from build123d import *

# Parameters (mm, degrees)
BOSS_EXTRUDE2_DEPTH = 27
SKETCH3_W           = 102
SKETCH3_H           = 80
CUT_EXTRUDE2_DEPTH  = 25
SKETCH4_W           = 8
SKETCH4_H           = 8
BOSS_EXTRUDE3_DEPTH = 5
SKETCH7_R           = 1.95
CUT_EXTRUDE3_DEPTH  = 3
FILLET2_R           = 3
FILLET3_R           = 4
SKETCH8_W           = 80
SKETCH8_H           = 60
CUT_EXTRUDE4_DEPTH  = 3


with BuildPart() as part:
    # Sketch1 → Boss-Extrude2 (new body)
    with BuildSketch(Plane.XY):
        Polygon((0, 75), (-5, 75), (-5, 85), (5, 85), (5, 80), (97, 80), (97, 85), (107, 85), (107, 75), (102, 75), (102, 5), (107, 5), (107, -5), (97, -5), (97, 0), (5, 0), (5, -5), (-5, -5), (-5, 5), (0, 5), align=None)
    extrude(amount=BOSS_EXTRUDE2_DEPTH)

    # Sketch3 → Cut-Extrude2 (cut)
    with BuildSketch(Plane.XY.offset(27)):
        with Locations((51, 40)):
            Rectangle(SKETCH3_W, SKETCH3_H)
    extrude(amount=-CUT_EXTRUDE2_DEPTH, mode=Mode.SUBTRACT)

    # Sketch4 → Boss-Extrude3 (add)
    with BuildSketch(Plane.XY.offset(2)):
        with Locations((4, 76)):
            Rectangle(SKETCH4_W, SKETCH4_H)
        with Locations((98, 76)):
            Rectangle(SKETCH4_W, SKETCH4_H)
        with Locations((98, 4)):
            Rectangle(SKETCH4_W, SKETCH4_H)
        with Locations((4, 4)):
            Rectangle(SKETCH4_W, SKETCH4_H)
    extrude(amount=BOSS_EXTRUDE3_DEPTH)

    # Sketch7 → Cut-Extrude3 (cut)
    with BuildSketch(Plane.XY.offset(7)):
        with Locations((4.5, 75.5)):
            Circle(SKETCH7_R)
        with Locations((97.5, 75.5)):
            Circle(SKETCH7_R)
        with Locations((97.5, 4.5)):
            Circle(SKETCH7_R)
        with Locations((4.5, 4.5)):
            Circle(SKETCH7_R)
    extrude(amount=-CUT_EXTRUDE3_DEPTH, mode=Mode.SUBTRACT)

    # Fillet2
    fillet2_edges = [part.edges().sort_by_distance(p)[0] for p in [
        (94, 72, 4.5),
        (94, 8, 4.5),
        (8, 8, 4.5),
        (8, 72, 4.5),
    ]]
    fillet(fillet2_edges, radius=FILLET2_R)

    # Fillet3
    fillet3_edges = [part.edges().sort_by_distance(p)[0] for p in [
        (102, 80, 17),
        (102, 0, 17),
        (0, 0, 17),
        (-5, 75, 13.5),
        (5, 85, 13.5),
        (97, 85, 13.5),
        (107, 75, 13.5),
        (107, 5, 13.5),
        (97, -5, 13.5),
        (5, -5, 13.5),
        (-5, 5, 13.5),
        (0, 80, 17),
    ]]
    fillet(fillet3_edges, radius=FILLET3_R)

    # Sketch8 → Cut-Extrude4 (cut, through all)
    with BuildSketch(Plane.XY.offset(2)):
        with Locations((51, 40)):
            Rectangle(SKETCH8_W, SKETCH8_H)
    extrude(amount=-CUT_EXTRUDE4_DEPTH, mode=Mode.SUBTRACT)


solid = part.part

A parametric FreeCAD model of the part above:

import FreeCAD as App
import Part
import Sketcher
Q = App.Units.Quantity


def edges_at(feature, points):
    """Names of the edges that pass closest to the given points."""
    edges = feature.Shape.Edges
    near = lambda p: min(range(len(edges)), key=lambda i: edges[i].distToShape(Part.Vertex(*p))[0])
    return sorted({f"Edge{near(p) + 1}" for p in points})


def add_polygon(sketch, points):
    """Adds a closed chain of lines whose ends are joined by coincident constraints."""
    first, n = sketch.GeometryCount, len(points)
    for a, b in zip(points, points[1:] + points[:1]):
        sketch.addGeometry(Part.LineSegment(App.Vector(*a, 0), App.Vector(*b, 0)), False)
    for i in range(n):
        sketch.addConstraint(Sketcher.Constraint("Coincident", first + i, 2, first + (i + 1) % n, 1))

doc = App.newDocument("Part")
params = doc.addObject("Spreadsheet::Sheet", "Params")
for row, (alias, value) in enumerate([
    ("sketch1_width", "5 mm"),
    ("sketch1_width2", "92 mm"),
    ("sketch1_height", "70 mm"),
    ("pad1_length", "27 mm"),
    ("sketch2_width", "102 mm"),
    ("sketch2_height", "80 mm"),
    ("pocket1_length", "25 mm"),
    ("sketch3_width", "8 mm"),
    ("pad2_length", "5 mm"),
    ("sketch4_diameter", "3.9 mm"),
    ("pocket2_length", "3 mm"),
    ("fillet_radius", "3 mm"),
    ("fillet2_radius", "4 mm"),
    ("sketch5_width", "80 mm"),
    ("sketch5_height", "60 mm"),
], start=1):
    params.set(f"A{row}", alias)
    params.set(f"B{row}", "=" + value)
    params.setAlias(f"B{row}", alias)

body = doc.addObject("PartDesign::Body", "Body")

# Sketch on XY plane
sketch1 = doc.addObject("Sketcher::SketchObject", "Sketch")
body.addObject(sketch1)
sketch1.AttachmentSupport = (doc.XY_Plane, [""])
sketch1.MapMode = "FlatFace"
add_polygon(sketch1, [(-5, 75), (0, 75), (0, 5), (-5, 5), (-5, -5), (5, -5), (5, 0), (97, 0), (97, -5), (107, -5), (107, 5), (102, 5), (102, 75), (107, 75), (107, 85), (97, 85), (97, 80), (5, 80), (5, 85), (-5, 85)])  # lines 0-19
sketch1.addConstraint([
    Sketcher.Constraint("Horizontal", 0),
    Sketcher.Constraint("Vertical", 1),
    Sketcher.Constraint("Horizontal", 2),
    Sketcher.Constraint("Vertical", 3),
    Sketcher.Constraint("Horizontal", 4),
    Sketcher.Constraint("Vertical", 5),
    Sketcher.Constraint("Horizontal", 6),
    Sketcher.Constraint("Vertical", 7),
    Sketcher.Constraint("Horizontal", 8),
    Sketcher.Constraint("Vertical", 9),
    Sketcher.Constraint("Horizontal", 10),
    Sketcher.Constraint("Vertical", 11),
    Sketcher.Constraint("Horizontal", 12),
    Sketcher.Constraint("Vertical", 13),
    Sketcher.Constraint("Horizontal", 14),
    Sketcher.Constraint("Vertical", 15),
    Sketcher.Constraint("Horizontal", 16),
    Sketcher.Constraint("Vertical", 17),
    Sketcher.Constraint("Horizontal", 18),
    Sketcher.Constraint("Vertical", 19),
    Sketcher.Constraint("Symmetric", 2, 2, 4, 2, -1, 1),
    Sketcher.Constraint("PointOnObject", 0, 2, -2),
    Sketcher.Constraint("PointOnObject", 5, 2, -1),
    Sketcher.Constraint("Horizontal", 4, 2, 7, 2),
    Sketcher.Constraint("Horizontal", 2, 2, 9, 2),
    Sketcher.Constraint("Horizontal", 0, 2, 11, 2),
    Sketcher.Constraint("Horizontal", 14, 2, 17, 2),
    Sketcher.Constraint("Vertical", 9, 2, 12, 2),
    Sketcher.Constraint("Vertical", 7, 2, 14, 2),
    Sketcher.Constraint("Vertical", 5, 2, 16, 2),
    Sketcher.Constraint("Vertical", 3, 2, 18, 2),
    Sketcher.Constraint("Equal", 4, 8),
    Sketcher.Constraint("Equal", 2, 10),
    Sketcher.Constraint("Equal", 18, 3),
    Sketcher.Constraint("Equal", 9, 13),
    Sketcher.Constraint("Equal", 7, 15),
    Sketcher.Constraint("DistanceX", 0, 1, 0, 2, Q("5 mm")),
    Sketcher.Constraint("DistanceX", 6, 1, 6, 2, Q("92 mm")),
    Sketcher.Constraint("DistanceY", 1, 2, 1, 1, Q("70 mm")),
])
sketch1.setExpression("Constraints[56]", "Params.sketch1_width")
sketch1.setExpression("Constraints[57]", "Params.sketch1_width2")
sketch1.setExpression("Constraints[58]", "Params.sketch1_height")
pad1 = doc.addObject("PartDesign::Pad", "Pad")
body.addObject(pad1)
pad1.Profile = sketch1
pad1.setExpression("Length", "Params.pad1_length")

# Sketch on XY plane
sketch2 = doc.addObject("Sketcher::SketchObject", "Sketch001")
body.addObject(sketch2)
sketch2.AttachmentSupport = (doc.XY_Plane, [""])
sketch2.MapMode = "FlatFace"
sketch2.AttachmentOffset = App.Placement(App.Vector(0, 0, 27), App.Rotation())
add_polygon(sketch2, [(0, 80), (0, 0), (102, 0), (102, 80)])  # lines 0-3
sketch2.addConstraint([
    Sketcher.Constraint("Vertical", 0),
    Sketcher.Constraint("Horizontal", 1),
    Sketcher.Constraint("Vertical", 2),
    Sketcher.Constraint("Horizontal", 3),
    Sketcher.Constraint("Coincident", 0, 2, -1, 1),
    Sketcher.Constraint("DistanceX", 1, 1, 1, 2, Q("102 mm")),
    Sketcher.Constraint("DistanceY", 0, 2, 0, 1, Q("80 mm")),
])
sketch2.setExpression("Constraints[9]", "Params.sketch2_width")
sketch2.setExpression("Constraints[10]", "Params.sketch2_height")
pocket1 = doc.addObject("PartDesign::Pocket", "Pocket")
body.addObject(pocket1)
pocket1.Profile = sketch2
pocket1.setExpression("Length", "Params.pocket1_length")

# Sketch on XY plane
sketch3 = doc.addObject("Sketcher::SketchObject", "Sketch002")
body.addObject(sketch3)
sketch3.AttachmentSupport = (doc.XY_Plane, [""])
sketch3.MapMode = "FlatFace"
sketch3.AttachmentOffset = App.Placement(App.Vector(0, 0, 2), App.Rotation())
add_polygon(sketch3, [(0, 80), (0, 72), (8, 72), (8, 80)])  # lines 0-3
add_polygon(sketch3, [(94, 80), (94, 72), (102, 72), (102, 80)])  # lines 4-7
add_polygon(sketch3, [(94, 8), (94, 0), (102, 0), (102, 8)])  # lines 8-11
add_polygon(sketch3, [(0, 8), (0, 0), (8, 0), (8, 8)])  # lines 12-15
sketch3.addConstraint([
    Sketcher.Constraint("Vertical", 0),
    Sketcher.Constraint("Horizontal", 1),
    Sketcher.Constraint("Vertical", 2),
    Sketcher.Constraint("Horizontal", 3),
    Sketcher.Constraint("Vertical", 4),
    Sketcher.Constraint("Horizontal", 5),
    Sketcher.Constraint("Vertical", 6),
    Sketcher.Constraint("Horizontal", 7),
    Sketcher.Constraint("Vertical", 8),
    Sketcher.Constraint("Horizontal", 9),
    Sketcher.Constraint("Vertical", 10),
    Sketcher.Constraint("Horizontal", 11),
    Sketcher.Constraint("Vertical", 12),
    Sketcher.Constraint("Horizontal", 13),
    Sketcher.Constraint("Vertical", 14),
    Sketcher.Constraint("Horizontal", 15),
    Sketcher.Constraint("Coincident", 12, 2, -1, 1),
    Sketcher.Constraint("PointOnObject", 0, 2, -2),
    Sketcher.Constraint("PointOnObject", 8, 2, -1),
    Sketcher.Constraint("Horizontal", 1, 2, 4, 2),
    Sketcher.Constraint("Horizontal", 3, 2, 6, 2),
    Sketcher.Constraint("Horizontal", 11, 2, 14, 2),
    Sketcher.Constraint("Vertical", 7, 2, 8, 2),
    Sketcher.Constraint("Vertical", 6, 2, 9, 2),
    Sketcher.Constraint("Vertical", 2, 2, 13, 2),
    Sketcher.Constraint("Equal", 3, 5),
    Sketcher.Constraint("Equal", 15, 0),
    Sketcher.Constraint("Equal", 6, 8),
    Sketcher.Constraint("DistanceX", 1, 1, 1, 2, Q("8 mm")),
    Sketcher.Constraint("DistanceY", -1, 1, 0, 2, Q("72 mm")),
    Sketcher.Constraint("DistanceX", -1, 1, 4, 2, Q("94 mm")),
])
sketch3.setExpression("Constraints[44]", "Params.sketch3_width")
pad2 = doc.addObject("PartDesign::Pad", "Pad001")
body.addObject(pad2)
pad2.Profile = sketch3
pad2.setExpression("Length", "Params.pad2_length")

# Sketch on XY plane
sketch4 = doc.addObject("Sketcher::SketchObject", "Sketch003")
body.addObject(sketch4)
sketch4.AttachmentSupport = (doc.XY_Plane, [""])
sketch4.MapMode = "FlatFace"
sketch4.AttachmentOffset = App.Placement(App.Vector(0, 0, 7), App.Rotation())
sketch4.addGeometry([
    Part.Circle(App.Vector(4.5, 75.5, 0), App.Vector(0, 0, 1), 1.9),
    Part.Circle(App.Vector(97.5, 75.5, 0), App.Vector(0, 0, 1), 1.9),
    Part.Circle(App.Vector(97.5, 4.5, 0), App.Vector(0, 0, 1), 1.9),
    Part.Circle(App.Vector(4.5, 4.5, 0), App.Vector(0, 0, 1), 1.9),
], False)
sketch4.addConstraint([
    Sketcher.Constraint("Equal", 0, 1),
    Sketcher.Constraint("Equal", 1, 2),
    Sketcher.Constraint("Equal", 2, 3),
    Sketcher.Constraint("Horizontal", 0, 3, 1, 3),
    Sketcher.Constraint("Horizontal", 2, 3, 3, 3),
    Sketcher.Constraint("Vertical", 1, 3, 2, 3),
    Sketcher.Constraint("Vertical", 0, 3, 3, 3),
    Sketcher.Constraint("Diameter", 0, Q("3.9 mm")),
    Sketcher.Constraint("DistanceX", 0, 3, 1, 3, Q("93 mm")),
    Sketcher.Constraint("DistanceY", 2, 3, 1, 3, Q("71 mm")),
    Sketcher.Constraint("DistanceX", -1, 1, 0, 3, Q("4.5 mm")),
    Sketcher.Constraint("DistanceY", -1, 1, 0, 3, Q("75.5 mm")),
])
sketch4.setExpression("Constraints[7]", "Params.sketch4_diameter")
pocket2 = doc.addObject("PartDesign::Pocket", "Pocket001")
body.addObject(pocket2)
pocket2.Profile = sketch4
pocket2.setExpression("Length", "Params.pocket2_length")
doc.recompute()

fillet = doc.addObject("PartDesign::Fillet", "Fillet")
body.addObject(fillet)
fillet.Base = (pocket2, edges_at(pocket2, [
    (94, 72, 4.5),
    (94, 8, 4.5),
    (8, 8, 4.5),
    (8, 72, 4.5),
]))
fillet.setExpression("Radius", "Params.fillet_radius")
doc.recompute()

fillet2 = doc.addObject("PartDesign::Fillet", "Fillet001")
body.addObject(fillet2)
fillet2.Base = (fillet, edges_at(fillet, [
    (102, 80, 17),
    (102, 0, 17),
    (0, 0, 17),
    (-5, 75, 13.5),
    (5, 85, 13.5),
    (97, 85, 13.5),
    (107, 75, 13.5),
    (107, 5, 13.5),
    (97, -5, 13.5),
    (5, -5, 13.5),
    (-5, 5, 13.5),
    (0, 80, 17),
]))
fillet2.setExpression("Radius", "Params.fillet2_radius")

# Sketch on XY plane
sketch5 = doc.addObject("Sketcher::SketchObject", "Sketch004")
body.addObject(sketch5)
sketch5.AttachmentSupport = (doc.XY_Plane, [""])
sketch5.MapMode = "FlatFace"
sketch5.AttachmentOffset = App.Placement(App.Vector(0, 0, 2), App.Rotation())
add_polygon(sketch5, [(11, 70), (11, 10), (91, 10), (91, 70)])  # lines 0-3
sketch5.addConstraint([
    Sketcher.Constraint("Vertical", 0),
    Sketcher.Constraint("Horizontal", 1),
    Sketcher.Constraint("Vertical", 2),
    Sketcher.Constraint("Horizontal", 3),
    Sketcher.Constraint("DistanceX", 1, 1, 1, 2, Q("80 mm")),
    Sketcher.Constraint("DistanceY", 0, 2, 0, 1, Q("60 mm")),
    Sketcher.Constraint("DistanceX", -1, 1, 0, 2, Q("11 mm")),
    Sketcher.Constraint("DistanceY", -1, 1, 0, 2, Q("10 mm")),
])
sketch5.setExpression("Constraints[8]", "Params.sketch5_width")
sketch5.setExpression("Constraints[9]", "Params.sketch5_height")
pocket3 = doc.addObject("PartDesign::Pocket", "Pocket002")
body.addObject(pocket3)
pocket3.Profile = sketch5
pocket3.Type = "ThroughAll"

doc.recompute()
